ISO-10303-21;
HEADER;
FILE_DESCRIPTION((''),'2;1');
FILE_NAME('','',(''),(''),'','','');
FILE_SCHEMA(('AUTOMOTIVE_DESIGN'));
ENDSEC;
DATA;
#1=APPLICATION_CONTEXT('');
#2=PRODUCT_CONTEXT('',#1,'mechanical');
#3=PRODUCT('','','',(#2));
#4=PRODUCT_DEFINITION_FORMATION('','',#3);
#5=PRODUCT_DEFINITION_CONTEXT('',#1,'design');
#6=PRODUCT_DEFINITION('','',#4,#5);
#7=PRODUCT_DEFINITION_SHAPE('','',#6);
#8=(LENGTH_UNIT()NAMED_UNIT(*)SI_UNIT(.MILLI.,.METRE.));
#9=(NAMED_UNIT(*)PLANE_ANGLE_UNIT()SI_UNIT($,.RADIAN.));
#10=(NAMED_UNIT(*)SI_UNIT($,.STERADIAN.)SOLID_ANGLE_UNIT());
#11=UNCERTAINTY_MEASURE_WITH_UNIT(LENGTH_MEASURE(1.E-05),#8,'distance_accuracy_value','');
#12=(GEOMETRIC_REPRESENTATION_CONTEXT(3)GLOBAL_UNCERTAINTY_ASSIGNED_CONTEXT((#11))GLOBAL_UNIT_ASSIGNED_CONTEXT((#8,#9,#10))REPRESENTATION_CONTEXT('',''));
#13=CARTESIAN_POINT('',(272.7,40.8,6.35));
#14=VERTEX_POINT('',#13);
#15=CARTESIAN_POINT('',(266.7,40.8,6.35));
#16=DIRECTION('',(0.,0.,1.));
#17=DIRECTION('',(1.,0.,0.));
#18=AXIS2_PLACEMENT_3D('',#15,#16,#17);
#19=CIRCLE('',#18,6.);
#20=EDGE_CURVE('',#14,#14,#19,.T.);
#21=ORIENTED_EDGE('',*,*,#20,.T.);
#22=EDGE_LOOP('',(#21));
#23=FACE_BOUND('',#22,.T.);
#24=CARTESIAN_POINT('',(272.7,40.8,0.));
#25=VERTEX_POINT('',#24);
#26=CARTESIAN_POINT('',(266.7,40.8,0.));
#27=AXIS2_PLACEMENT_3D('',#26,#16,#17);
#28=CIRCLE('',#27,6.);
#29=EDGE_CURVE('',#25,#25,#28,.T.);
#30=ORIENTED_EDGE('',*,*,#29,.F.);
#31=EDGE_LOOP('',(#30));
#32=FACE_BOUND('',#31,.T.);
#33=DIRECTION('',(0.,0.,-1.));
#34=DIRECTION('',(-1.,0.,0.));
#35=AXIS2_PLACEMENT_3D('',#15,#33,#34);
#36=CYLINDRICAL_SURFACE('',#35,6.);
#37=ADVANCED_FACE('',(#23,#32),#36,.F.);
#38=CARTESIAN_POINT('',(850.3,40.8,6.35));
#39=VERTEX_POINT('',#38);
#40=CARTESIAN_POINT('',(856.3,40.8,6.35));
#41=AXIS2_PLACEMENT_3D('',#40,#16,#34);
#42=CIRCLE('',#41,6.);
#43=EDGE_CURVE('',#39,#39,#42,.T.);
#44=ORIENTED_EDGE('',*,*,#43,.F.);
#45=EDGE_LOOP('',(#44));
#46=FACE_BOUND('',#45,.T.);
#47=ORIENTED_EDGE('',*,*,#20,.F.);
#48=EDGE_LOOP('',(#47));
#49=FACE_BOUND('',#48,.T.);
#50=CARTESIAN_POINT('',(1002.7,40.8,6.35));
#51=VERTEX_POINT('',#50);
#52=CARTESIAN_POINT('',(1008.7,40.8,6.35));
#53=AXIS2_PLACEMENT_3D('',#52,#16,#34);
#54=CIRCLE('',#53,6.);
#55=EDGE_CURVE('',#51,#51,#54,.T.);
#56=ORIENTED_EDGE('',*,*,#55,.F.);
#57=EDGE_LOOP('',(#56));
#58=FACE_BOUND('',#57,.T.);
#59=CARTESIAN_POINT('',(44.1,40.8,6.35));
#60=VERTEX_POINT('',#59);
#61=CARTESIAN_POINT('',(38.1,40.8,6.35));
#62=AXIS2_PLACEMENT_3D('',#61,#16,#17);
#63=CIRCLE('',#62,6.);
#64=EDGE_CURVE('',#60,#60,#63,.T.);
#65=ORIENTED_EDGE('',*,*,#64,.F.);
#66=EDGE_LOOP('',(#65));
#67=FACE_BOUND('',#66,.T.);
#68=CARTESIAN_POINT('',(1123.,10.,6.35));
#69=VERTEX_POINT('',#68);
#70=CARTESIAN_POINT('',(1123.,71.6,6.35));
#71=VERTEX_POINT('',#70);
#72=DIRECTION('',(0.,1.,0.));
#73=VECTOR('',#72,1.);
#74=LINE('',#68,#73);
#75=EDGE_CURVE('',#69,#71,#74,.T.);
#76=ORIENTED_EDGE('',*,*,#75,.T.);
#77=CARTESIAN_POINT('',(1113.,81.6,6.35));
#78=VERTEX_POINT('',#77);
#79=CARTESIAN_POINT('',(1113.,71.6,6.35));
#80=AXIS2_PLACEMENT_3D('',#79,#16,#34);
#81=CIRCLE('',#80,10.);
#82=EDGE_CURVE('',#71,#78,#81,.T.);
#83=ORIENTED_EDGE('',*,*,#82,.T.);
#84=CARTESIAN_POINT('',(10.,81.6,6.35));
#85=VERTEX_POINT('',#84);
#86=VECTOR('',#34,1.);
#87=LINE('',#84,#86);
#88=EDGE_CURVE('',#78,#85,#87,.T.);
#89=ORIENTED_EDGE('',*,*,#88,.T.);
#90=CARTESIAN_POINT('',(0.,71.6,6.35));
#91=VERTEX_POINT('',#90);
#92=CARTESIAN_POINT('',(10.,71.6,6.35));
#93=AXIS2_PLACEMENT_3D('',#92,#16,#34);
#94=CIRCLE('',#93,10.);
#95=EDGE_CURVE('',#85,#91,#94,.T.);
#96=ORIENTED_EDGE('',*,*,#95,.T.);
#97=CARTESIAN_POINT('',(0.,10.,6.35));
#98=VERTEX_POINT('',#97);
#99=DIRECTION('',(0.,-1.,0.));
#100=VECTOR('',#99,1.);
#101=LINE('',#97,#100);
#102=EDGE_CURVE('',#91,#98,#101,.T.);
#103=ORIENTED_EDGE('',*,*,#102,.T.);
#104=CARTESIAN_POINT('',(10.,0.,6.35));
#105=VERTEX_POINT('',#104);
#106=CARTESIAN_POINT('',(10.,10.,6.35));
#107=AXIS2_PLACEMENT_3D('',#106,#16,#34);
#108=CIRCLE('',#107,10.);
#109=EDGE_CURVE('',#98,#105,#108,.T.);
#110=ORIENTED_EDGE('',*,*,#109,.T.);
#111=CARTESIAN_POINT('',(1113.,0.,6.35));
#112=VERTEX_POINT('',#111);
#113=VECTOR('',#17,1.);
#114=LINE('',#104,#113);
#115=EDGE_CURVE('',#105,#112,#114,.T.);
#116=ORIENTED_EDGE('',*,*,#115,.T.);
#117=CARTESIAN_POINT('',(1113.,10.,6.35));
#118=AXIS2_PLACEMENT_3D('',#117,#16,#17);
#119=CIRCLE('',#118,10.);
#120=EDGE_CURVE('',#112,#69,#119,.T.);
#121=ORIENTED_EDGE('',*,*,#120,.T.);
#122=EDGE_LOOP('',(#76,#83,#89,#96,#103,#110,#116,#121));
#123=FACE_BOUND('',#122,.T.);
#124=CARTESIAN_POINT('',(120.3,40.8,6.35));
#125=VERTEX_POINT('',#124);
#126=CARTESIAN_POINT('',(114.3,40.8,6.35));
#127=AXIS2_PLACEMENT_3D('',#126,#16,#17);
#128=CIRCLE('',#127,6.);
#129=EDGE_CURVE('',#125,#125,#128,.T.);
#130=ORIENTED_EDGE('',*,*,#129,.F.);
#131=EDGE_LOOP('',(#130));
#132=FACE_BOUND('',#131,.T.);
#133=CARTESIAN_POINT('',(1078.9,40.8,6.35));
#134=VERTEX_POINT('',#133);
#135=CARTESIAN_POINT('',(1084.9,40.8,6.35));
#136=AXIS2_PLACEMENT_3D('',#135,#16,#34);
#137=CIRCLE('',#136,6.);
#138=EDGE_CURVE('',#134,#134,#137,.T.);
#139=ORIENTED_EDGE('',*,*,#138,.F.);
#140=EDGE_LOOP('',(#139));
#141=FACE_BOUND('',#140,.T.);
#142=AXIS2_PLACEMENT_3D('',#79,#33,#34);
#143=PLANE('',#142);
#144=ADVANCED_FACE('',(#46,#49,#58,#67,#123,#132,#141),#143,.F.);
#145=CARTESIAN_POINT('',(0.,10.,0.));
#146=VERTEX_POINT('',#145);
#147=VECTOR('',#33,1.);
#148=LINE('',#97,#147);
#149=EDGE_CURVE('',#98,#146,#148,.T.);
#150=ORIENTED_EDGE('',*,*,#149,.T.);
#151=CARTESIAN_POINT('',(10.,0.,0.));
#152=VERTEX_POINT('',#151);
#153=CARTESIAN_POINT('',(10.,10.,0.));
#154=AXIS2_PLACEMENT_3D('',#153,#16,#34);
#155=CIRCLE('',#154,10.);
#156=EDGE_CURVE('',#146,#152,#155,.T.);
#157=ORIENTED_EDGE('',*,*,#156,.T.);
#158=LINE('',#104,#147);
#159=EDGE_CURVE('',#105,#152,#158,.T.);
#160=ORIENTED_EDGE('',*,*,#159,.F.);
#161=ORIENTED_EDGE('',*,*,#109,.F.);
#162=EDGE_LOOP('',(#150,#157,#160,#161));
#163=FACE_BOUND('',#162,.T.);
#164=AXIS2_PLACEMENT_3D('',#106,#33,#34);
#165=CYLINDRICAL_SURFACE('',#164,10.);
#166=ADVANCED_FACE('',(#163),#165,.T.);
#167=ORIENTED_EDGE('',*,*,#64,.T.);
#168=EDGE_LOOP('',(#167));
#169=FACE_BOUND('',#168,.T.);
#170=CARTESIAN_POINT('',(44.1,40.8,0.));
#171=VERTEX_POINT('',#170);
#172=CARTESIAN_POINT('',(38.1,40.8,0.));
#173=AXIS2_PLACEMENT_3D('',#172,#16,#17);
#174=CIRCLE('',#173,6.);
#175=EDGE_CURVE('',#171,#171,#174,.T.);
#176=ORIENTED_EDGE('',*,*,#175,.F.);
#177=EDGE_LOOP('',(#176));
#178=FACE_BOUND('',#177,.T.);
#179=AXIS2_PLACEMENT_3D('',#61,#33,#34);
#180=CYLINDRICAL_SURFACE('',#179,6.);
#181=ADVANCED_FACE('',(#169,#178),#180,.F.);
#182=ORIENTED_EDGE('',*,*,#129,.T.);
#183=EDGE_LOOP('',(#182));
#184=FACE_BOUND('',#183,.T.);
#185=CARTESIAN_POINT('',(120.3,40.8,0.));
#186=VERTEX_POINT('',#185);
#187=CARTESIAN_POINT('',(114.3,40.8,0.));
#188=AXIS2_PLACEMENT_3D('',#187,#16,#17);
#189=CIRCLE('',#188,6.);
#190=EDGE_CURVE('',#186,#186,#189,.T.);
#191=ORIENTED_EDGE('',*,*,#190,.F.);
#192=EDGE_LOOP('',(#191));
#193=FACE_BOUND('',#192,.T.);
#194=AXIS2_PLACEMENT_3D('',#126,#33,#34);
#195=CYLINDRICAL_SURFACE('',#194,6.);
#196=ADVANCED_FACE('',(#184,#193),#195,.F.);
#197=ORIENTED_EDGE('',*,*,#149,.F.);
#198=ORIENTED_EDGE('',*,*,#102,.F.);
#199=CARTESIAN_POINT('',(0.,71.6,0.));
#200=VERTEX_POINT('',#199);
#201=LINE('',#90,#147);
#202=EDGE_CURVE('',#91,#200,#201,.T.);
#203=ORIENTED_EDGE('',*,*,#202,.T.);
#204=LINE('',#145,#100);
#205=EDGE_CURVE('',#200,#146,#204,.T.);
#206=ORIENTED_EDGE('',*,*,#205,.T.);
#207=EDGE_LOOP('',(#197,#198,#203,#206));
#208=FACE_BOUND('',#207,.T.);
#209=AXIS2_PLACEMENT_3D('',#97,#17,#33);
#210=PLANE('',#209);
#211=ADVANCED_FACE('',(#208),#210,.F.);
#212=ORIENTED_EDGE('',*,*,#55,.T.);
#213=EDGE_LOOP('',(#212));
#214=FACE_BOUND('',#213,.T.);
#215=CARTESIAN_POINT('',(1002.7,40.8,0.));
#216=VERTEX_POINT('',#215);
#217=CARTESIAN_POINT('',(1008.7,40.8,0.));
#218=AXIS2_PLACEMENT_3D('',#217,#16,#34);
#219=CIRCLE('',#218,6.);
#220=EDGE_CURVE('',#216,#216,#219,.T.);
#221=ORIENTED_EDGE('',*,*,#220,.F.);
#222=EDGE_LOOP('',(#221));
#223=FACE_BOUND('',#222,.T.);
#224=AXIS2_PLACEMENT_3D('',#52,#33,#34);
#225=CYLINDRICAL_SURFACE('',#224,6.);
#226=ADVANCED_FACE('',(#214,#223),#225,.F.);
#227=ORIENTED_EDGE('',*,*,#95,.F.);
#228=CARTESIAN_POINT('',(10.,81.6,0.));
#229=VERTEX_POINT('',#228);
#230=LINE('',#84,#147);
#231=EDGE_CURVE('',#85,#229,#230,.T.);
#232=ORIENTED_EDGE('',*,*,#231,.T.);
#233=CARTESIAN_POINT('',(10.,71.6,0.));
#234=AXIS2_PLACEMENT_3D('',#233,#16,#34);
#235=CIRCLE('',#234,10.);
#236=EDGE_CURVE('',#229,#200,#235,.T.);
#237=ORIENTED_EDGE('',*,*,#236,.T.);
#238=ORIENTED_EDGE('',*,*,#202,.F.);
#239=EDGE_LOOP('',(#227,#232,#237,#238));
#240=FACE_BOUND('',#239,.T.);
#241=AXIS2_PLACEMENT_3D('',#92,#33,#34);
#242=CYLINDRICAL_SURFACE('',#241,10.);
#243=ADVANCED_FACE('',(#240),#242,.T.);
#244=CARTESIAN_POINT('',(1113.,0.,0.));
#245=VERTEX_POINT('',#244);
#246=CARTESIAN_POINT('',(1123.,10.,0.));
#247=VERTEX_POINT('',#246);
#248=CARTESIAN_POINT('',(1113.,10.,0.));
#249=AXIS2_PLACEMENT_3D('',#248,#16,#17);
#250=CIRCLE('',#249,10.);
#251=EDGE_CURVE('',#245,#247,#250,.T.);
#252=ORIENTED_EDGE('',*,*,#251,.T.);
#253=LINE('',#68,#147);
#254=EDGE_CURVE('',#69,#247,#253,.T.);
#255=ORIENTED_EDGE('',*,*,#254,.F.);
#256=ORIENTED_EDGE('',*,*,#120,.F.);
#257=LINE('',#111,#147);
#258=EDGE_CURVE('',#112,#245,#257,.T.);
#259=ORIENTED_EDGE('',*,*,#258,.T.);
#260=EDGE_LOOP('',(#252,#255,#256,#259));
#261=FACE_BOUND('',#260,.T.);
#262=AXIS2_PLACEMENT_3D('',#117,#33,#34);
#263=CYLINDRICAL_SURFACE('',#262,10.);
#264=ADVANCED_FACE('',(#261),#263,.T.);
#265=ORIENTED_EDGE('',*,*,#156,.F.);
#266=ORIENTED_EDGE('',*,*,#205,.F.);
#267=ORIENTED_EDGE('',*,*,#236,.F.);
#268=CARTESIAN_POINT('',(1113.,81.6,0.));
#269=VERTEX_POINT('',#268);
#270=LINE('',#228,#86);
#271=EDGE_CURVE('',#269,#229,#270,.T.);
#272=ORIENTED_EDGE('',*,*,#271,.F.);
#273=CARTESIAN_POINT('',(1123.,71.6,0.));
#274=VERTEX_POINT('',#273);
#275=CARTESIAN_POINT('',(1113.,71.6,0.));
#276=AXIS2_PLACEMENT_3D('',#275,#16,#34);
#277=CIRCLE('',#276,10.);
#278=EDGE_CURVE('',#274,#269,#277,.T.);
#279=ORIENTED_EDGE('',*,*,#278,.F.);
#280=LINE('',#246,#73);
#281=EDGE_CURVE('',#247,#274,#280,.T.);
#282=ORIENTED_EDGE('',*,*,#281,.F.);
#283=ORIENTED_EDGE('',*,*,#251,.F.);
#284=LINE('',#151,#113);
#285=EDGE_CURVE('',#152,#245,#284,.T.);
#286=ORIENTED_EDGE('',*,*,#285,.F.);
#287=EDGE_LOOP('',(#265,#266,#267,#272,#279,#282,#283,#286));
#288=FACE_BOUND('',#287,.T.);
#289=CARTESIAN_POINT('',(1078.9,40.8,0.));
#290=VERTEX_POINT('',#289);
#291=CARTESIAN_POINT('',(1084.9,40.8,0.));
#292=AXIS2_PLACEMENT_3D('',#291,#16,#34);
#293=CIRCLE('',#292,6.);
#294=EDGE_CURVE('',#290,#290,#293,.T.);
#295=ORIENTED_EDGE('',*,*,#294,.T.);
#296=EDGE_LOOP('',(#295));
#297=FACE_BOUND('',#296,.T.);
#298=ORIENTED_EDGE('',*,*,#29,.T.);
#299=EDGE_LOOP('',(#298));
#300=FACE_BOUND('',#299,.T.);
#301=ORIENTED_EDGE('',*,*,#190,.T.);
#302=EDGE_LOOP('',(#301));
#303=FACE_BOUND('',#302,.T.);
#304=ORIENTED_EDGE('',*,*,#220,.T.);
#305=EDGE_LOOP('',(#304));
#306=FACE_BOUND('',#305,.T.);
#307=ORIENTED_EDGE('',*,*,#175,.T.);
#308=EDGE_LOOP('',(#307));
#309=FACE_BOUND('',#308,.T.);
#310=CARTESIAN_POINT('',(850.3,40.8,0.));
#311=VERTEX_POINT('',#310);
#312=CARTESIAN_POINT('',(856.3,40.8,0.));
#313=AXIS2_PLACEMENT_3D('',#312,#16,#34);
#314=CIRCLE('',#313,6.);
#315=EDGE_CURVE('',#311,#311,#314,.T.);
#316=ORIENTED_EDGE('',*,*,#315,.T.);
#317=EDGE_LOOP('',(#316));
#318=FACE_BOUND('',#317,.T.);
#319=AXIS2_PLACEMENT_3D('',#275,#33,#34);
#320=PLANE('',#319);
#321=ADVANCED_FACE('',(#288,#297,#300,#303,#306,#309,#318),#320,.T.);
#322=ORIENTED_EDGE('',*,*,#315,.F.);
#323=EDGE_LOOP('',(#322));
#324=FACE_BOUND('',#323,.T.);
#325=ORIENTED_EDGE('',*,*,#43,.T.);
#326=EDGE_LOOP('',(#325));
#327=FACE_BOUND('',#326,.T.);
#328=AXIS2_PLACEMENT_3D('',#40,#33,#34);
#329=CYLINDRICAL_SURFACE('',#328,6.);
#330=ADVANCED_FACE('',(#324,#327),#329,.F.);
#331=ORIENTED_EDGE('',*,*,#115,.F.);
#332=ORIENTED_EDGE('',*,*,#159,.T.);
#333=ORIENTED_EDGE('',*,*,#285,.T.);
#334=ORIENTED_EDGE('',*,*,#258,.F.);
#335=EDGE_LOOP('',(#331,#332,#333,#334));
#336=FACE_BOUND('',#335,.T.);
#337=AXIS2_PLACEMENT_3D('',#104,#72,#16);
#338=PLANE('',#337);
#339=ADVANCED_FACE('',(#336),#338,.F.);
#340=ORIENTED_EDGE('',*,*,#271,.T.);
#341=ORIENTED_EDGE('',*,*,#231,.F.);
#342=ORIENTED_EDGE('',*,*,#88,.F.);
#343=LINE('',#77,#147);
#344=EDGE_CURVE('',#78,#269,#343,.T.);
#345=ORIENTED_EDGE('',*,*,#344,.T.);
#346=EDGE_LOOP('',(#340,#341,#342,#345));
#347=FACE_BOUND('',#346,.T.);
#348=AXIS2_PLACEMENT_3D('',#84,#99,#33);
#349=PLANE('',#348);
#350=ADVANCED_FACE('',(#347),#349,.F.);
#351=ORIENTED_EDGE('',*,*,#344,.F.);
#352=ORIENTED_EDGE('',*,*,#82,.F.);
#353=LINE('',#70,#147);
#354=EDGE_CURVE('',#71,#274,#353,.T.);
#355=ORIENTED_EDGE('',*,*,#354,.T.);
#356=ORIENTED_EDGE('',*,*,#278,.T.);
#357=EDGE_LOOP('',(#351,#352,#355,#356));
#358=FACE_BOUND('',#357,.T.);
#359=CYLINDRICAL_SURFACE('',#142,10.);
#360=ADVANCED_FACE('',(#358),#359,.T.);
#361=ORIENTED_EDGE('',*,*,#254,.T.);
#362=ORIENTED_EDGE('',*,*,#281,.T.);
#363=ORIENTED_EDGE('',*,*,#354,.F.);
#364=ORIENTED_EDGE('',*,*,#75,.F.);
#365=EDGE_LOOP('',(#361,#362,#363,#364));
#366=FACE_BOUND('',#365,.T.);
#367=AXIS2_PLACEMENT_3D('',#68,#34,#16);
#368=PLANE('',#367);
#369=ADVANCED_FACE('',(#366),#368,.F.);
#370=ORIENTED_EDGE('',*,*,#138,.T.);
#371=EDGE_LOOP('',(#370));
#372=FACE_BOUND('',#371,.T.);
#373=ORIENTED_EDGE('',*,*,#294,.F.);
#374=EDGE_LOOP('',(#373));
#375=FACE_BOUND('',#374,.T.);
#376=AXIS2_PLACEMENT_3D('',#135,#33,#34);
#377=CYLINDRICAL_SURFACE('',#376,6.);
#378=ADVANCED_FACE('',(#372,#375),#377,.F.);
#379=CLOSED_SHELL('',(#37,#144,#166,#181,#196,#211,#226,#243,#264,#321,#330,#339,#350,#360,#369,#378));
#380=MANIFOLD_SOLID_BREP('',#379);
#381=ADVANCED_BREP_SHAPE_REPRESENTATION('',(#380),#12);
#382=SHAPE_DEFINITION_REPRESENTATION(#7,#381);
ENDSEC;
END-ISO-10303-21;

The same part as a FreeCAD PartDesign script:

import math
import FreeCAD as App
import Part
import Sketcher
from FreeCAD import Vector
Q = App.Units.Quantity

doc = App.newDocument("Part")
body = doc.addObject("PartDesign::Body", "Body")

sketch1 = body.newObject("Sketcher::SketchObject", "Sketch")
sketch1.AttachmentSupport = (doc.getObject("XY_Plane"), [""])
sketch1.MapMode = "FlatFace"
sketch1.addGeometry([
    Part.LineSegment(Vector(10, 0, 0), Vector(1113, 0, 0)),
    Part.ArcOfCircle(Part.Circle(Vector(1113, 10, 0), Vector(0, 0, 1), 10), math.radians(-90), math.radians(0)),
    Part.LineSegment(Vector(1123, 10, 0), Vector(1123, 72, 0)),
    Part.ArcOfCircle(Part.Circle(Vector(1113, 72, 0), Vector(0, 0, 1), 10), math.radians(0), math.radians(90)),
    Part.LineSegment(Vector(1113, 82, 0), Vector(10, 82, 0)),
    Part.ArcOfCircle(Part.Circle(Vector(10, 72, 0), Vector(0, 0, 1), 10), math.radians(90), math.radians(180)),
    Part.LineSegment(Vector(0, 72, 0), Vector(0, 10, 0)),
    Part.ArcOfCircle(Part.Circle(Vector(10, 10, 0), Vector(0, 0, 1), 10), math.radians(180), math.radians(270)),
    Part.Circle(Vector(38, 41, 0), Vector(0, 0, 1), 6),
    Part.Circle(Vector(114, 41, 0), Vector(0, 0, 1), 6),
    Part.Circle(Vector(267, 41, 0), Vector(0, 0, 1), 6),
    Part.Circle(Vector(856, 41, 0), Vector(0, 0, 1), 6),
    Part.Circle(Vector(1009, 41, 0), Vector(0, 0, 1), 6),
    Part.Circle(Vector(1085, 41, 0), Vector(0, 0, 1), 6),
], False)
sketch1.addConstraint([
    Sketcher.Constraint("Tangent", 0, 2, 1, 1),
    Sketcher.Constraint("Tangent", 1, 2, 2, 1),
    Sketcher.Constraint("Tangent", 2, 2, 3, 1),
    Sketcher.Constraint("Tangent", 3, 2, 4, 1),
    Sketcher.Constraint("Tangent", 4, 2, 5, 1),
    Sketcher.Constraint("Tangent", 5, 2, 6, 1),
    Sketcher.Constraint("Tangent", 6, 2, 7, 1),
    Sketcher.Constraint("Tangent", 7, 2, 0, 1),
    Sketcher.Constraint("Horizontal", 0),
    Sketcher.Constraint("Vertical", 2),
    Sketcher.Constraint("Horizontal", 4),
    Sketcher.Constraint("Vertical", 6),
    Sketcher.Constraint("Equal", 1, 3),
    Sketcher.Constraint("Equal", 3, 5),
    Sketcher.Constraint("Equal", 5, 7),
    Sketcher.Constraint("Equal", 8, 9),
    Sketcher.Constraint("Equal", 9, 10),
    Sketcher.Constraint("Equal", 10, 11),
    Sketcher.Constraint("Equal", 11, 12),
    Sketcher.Constraint("Equal", 12, 13),
    Sketcher.Constraint("PointOnObject", 0, 2, -1),
    Sketcher.Constraint("PointOnObject", 5, 2, -2),
    Sketcher.Constraint("Horizontal", 8, 3, 9, 3),
    Sketcher.Constraint("Horizontal", 9, 3, 10, 3),
    Sketcher.Constraint("Horizontal", 10, 3, 11, 3),
    Sketcher.Constraint("Horizontal", 11, 3, 12, 3),
    Sketcher.Constraint("Horizontal", 12, 3, 13, 3),
    Sketcher.Constraint("Diameter", 8, Q("12 mm")),
    Sketcher.Constraint("Radius", 1, Q("10 mm")),
    Sketcher.Constraint("DistanceX", 0, 1, 0, 2, Q("1103 mm")),
    Sketcher.Constraint("DistanceY", 2, 1, 2, 2, Q("61.6 mm")),
    Sketcher.Constraint("DistanceX", 9, 3, 11, 3, Q("742 mm")),
    Sketcher.Constraint("DistanceX", 10, 3, 12, 3, Q("742 mm")),
    Sketcher.Constraint("DistanceX", -1, 1, 8, 3, Q("38.1 mm")),
    Sketcher.Constraint("DistanceY", -1, 1, 8, 3, Q("40.8 mm")),
    Sketcher.Constraint("DistanceX", -1, 1, 9, 3, Q("114.3 mm")),
    Sketcher.Constraint("DistanceX", -1, 1, 10, 3, Q("266.7 mm")),
    Sketcher.Constraint("DistanceX", -1, 1, 13, 3, Q("1084.9 mm")),
])
pad1 = body.newObject("PartDesign::Pad", "Pad")
pad1.Profile = sketch1
pad1.Length = 6.35

doc.recompute()
